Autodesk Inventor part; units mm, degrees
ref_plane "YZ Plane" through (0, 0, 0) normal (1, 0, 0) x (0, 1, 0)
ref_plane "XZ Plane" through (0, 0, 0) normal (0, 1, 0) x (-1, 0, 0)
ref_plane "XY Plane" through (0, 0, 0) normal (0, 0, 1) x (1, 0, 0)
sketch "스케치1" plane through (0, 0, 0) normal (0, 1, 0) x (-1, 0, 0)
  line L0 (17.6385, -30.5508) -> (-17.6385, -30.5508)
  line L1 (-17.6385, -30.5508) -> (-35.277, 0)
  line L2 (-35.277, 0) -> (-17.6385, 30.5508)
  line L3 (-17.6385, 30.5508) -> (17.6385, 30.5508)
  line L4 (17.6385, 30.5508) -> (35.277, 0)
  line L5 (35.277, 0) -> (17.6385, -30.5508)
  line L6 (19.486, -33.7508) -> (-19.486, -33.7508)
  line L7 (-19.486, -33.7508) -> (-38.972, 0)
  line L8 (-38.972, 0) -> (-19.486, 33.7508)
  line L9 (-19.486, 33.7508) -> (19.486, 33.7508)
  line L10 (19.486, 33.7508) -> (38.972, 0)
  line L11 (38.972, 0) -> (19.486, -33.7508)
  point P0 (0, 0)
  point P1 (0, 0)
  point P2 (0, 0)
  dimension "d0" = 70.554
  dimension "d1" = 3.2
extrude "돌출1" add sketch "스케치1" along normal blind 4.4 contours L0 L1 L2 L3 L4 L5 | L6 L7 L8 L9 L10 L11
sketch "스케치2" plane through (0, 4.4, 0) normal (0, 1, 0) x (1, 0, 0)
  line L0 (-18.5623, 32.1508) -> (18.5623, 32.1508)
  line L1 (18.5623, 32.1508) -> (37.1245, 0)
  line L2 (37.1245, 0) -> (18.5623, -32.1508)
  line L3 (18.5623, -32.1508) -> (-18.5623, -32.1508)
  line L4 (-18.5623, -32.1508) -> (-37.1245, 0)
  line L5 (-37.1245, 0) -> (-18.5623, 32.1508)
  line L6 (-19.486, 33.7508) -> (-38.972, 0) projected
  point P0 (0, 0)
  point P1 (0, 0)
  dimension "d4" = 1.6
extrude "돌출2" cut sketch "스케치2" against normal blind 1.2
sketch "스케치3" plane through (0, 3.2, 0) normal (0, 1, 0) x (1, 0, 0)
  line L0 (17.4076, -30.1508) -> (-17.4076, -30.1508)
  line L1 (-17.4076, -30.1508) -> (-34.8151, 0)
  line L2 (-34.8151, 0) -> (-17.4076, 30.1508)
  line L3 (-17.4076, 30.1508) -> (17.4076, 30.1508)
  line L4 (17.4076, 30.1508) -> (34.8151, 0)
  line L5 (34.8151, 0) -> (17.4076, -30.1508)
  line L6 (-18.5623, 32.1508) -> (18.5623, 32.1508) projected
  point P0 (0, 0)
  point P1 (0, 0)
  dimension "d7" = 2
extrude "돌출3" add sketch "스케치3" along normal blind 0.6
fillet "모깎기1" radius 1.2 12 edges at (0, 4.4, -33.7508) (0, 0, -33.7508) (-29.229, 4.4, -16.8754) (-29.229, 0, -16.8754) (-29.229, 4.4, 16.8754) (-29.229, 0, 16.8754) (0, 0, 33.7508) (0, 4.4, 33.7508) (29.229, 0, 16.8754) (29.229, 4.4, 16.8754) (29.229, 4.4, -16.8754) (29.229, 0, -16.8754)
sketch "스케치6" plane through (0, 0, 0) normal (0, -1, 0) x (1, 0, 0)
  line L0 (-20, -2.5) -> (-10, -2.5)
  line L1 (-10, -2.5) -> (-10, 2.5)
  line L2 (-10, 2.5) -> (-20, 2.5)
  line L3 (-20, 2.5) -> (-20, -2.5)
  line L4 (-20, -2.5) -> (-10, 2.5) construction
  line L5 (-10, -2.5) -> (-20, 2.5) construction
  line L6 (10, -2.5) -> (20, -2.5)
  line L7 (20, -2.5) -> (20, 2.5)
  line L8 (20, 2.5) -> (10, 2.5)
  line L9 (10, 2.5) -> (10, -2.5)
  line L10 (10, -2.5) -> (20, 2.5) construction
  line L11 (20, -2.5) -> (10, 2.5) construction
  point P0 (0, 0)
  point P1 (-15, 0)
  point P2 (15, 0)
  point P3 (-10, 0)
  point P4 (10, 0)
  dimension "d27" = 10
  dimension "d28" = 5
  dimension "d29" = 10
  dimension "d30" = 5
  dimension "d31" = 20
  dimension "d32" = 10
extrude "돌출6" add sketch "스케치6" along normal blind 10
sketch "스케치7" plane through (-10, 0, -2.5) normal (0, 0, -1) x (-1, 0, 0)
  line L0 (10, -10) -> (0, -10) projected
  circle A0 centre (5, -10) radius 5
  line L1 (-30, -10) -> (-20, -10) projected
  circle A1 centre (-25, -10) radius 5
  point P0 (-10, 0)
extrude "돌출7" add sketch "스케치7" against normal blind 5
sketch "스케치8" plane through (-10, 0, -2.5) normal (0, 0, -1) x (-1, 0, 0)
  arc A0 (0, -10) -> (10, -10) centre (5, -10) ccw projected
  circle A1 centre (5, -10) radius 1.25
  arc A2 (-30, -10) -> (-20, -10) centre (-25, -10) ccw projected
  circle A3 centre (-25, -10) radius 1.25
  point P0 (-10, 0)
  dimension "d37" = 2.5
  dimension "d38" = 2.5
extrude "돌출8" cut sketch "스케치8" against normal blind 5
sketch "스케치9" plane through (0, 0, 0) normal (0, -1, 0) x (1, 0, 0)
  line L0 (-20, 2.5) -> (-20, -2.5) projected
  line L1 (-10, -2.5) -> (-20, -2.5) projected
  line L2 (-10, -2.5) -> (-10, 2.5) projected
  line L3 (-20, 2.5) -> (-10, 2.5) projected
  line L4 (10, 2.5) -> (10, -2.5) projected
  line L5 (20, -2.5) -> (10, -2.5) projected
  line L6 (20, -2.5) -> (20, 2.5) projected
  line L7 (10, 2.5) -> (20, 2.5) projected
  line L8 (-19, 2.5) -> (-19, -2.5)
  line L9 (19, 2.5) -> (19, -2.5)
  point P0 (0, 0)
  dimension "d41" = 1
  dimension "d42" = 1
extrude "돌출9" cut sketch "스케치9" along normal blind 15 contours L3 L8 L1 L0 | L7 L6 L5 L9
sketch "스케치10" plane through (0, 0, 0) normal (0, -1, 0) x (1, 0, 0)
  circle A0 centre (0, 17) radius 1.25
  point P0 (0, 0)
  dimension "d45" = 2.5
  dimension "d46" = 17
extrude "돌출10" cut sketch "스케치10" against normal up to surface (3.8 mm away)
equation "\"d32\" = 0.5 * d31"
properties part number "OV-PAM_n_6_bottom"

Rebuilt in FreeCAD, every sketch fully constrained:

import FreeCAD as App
import Part
import Sketcher
from FreeCAD import Vector
Q = App.Units.Quantity


def edges_at(feature, points):
    """Names of the edges that pass closest to the given points."""
    edges = feature.Shape.Edges
    near = lambda p: min(range(len(edges)), key=lambda i: edges[i].distToShape(Part.Vertex(*p))[0])
    return sorted({f"Edge{near(p) + 1}" for p in points})


def add_polygon(sketch, points):
    """Adds a closed chain of lines whose ends are joined by coincident constraints."""
    first, n = sketch.GeometryCount, len(points)
    for a, b in zip(points, points[1:] + points[:1]):
        sketch.addGeometry(Part.LineSegment(App.Vector(*a, 0), App.Vector(*b, 0)), False)
    for i in range(n):
        sketch.addConstraint(Sketcher.Constraint("Coincident", first + i, 2, first + (i + 1) % n, 1))

doc = App.newDocument("Part")
body = doc.addObject("PartDesign::Body", "Body")

# Sketch on XZ plane
sketch1 = body.newObject("Sketcher::SketchObject", "Sketch")
sketch1.AttachmentSupport = (doc.getObject("XZ_Plane"), [""])
sketch1.MapMode = "FlatFace"
add_polygon(sketch1, [(19, -34), (-19, -34), (-39, 0), (-19, 34), (19, 34), (39, 0)])  # lines 0-5
sketch1.addConstraint(Sketcher.Constraint("Horizontal", 0))
sketch1.addConstraint(Sketcher.Constraint("Horizontal", 3))
sketch1.addConstraint(Sketcher.Constraint("Symmetric", 0, 2, 3, 2, -1, 1))
sketch1.addConstraint(Sketcher.Constraint("Symmetric", 1, 2, 4, 2, -1, 1))
sketch1.addConstraint(Sketcher.Constraint("PointOnObject", 1, 2, -1))
sketch1.addConstraint(Sketcher.Constraint("Parallel", 2, 5))
sketch1.addConstraint(Sketcher.Constraint("Vertical", 0, 2, 2, 2))
sketch1.addConstraint(Sketcher.Constraint("Angle", 1, Q("120 deg")))
sketch1.addConstraint(Sketcher.Constraint("DistanceX", 0, 2, 0, 1, Q("38.972 mm")))
sketch1.addConstraint(Sketcher.Constraint("Distance", 1, Q("38.972 mm")))
pad1 = body.newObject("PartDesign::Pad", "Pad")
pad1.Profile = sketch1
pad1.Length = 4.4
pad1.Reversed = True

# Sketch on XZ plane
sketch2 = body.newObject("Sketcher::SketchObject", "Sketch001")
sketch2.AttachmentSupport = (doc.getObject("XZ_Plane"), [""])
sketch2.MapMode = "FlatFace"
sketch2.AttachmentOffset = App.Placement(Vector(0, 0, -4.4), App.Rotation())
add_polygon(sketch2, [(19, -32), (-19, -32), (-37, 0), (-19, 32), (19, 32), (37, 0)])  # lines 0-5
sketch2.addConstraint(Sketcher.Constraint("Horizontal", 0))
sketch2.addConstraint(Sketcher.Constraint("Horizontal", 3))
sketch2.addConstraint(Sketcher.Constraint("Symmetric", 0, 2, 3, 2, -1, 1))
sketch2.addConstraint(Sketcher.Constraint("Symmetric", 1, 2, 4, 2, -1, 1))
sketch2.addConstraint(Sketcher.Constraint("PointOnObject", 1, 2, -1))
sketch2.addConstraint(Sketcher.Constraint("Parallel", 2, 5))
sketch2.addConstraint(Sketcher.Constraint("Vertical", 0, 2, 2, 2))
sketch2.addConstraint(Sketcher.Constraint("Angle", 1, Q("120 deg")))
sketch2.addConstraint(Sketcher.Constraint("DistanceX", 0, 2, 0, 1, Q("37.1246 mm")))
sketch2.addConstraint(Sketcher.Constraint("DistanceX", 1, 2, 4, 2, Q("74.249 mm")))
pocket1 = body.newObject("PartDesign::Pocket", "Pocket")
pocket1.Profile = sketch2
pocket1.Length = 1.2
pocket1.Reversed = True

# Sketch on XZ plane
sketch3 = body.newObject("Sketcher::SketchObject", "Sketch002")
sketch3.AttachmentSupport = (doc.getObject("XZ_Plane"), [""])
sketch3.MapMode = "FlatFace"
sketch3.AttachmentOffset = App.Placement(Vector(0, 0, -3.2), App.Rotation())
add_polygon(sketch3, [(-17, 30), (17, 30), (35, 0), (17, -30), (-17, -30), (-35, 0)])  # lines 0-5
sketch3.addConstraint(Sketcher.Constraint("Horizontal", 0))
sketch3.addConstraint(Sketcher.Constraint("Horizontal", 3))
sketch3.addConstraint(Sketcher.Constraint("Symmetric", 0, 2, 3, 2, -1, 1))
sketch3.addConstraint(Sketcher.Constraint("Symmetric", 1, 2, 4, 2, -1, 1))
sketch3.addConstraint(Sketcher.Constraint("PointOnObject", 1, 2, -1))
sketch3.addConstraint(Sketcher.Constraint("Parallel", 2, 5))
sketch3.addConstraint(Sketcher.Constraint("Vertical", 0, 2, 2, 2))
sketch3.addConstraint(Sketcher.Constraint("Angle", 1, Q("-60 deg")))
sketch3.addConstraint(Sketcher.Constraint("Distance", 1, Q("34.815 mm")))
sketch3.addConstraint(Sketcher.Constraint("DistanceX", 0, 1, 0, 2, Q("34.8152 mm")))
pad2 = body.newObject("PartDesign::Pad", "Pad001")
pad2.Profile = sketch3
pad2.Length = 0.6
pad2.Reversed = True
doc.recompute()

fillet = body.newObject("PartDesign::Fillet", "Fillet")
fillet.Base = (pad2, edges_at(pad2, [
    (0, 4.4, -33.751),
    (0, 0, -33.751),
    (-29.229, 4.4, -16.875),
    (-29.229, 0, -16.875),
    (-29.229, 4.4, 16.875),
    (-29.229, 0, 16.875),
    (0, 0, 33.751),
    (0, 4.4, 33.751),
    (29.229, 0, 16.875),
    (29.229, 4.4, 16.875),
    (29.229, 4.4, -16.875),
    (29.229, 0, -16.875),
]))
fillet.Radius = 1.2

# Sketch on XZ plane
sketch4 = body.newObject("Sketcher::SketchObject", "Sketch003")
sketch4.AttachmentSupport = (doc.getObject("XZ_Plane"), [""])
sketch4.MapMode = "FlatFace"
add_polygon(sketch4, [(-20, 2), (-20, -2), (-10, -2), (-10, 2)])  # lines 0-3
add_polygon(sketch4, [(10, 2), (10, -2), (20, -2), (20, 2)])  # lines 4-7
sketch4.addConstraint(Sketcher.Constraint("Vertical", 0))
sketch4.addConstraint(Sketcher.Constraint("Horizontal", 1))
sketch4.addConstraint(Sketcher.Constraint("Vertical", 2))
sketch4.addConstraint(Sketcher.Constraint("Horizontal", 3))
sketch4.addConstraint(Sketcher.Constraint("Vertical", 4))
sketch4.addConstraint(Sketcher.Constraint("Horizontal", 5))
sketch4.addConstraint(Sketcher.Constraint("Vertical", 6))
sketch4.addConstraint(Sketcher.Constraint("Horizontal", 7))
sketch4.addConstraint(Sketcher.Constraint("Symmetric", 2, 2, 4, 2, -1, 1))
sketch4.addConstraint(Sketcher.Constraint("Symmetric", 0, 2, 6, 2, -1, 1))
sketch4.addConstraint(Sketcher.Constraint("Horizontal", 1, 2, 4, 2))
sketch4.addConstraint(Sketcher.Constraint("DistanceX", 1, 1, 1, 2, Q("10 mm")))
sketch4.addConstraint(Sketcher.Constraint("DistanceY", 0, 2, 0, 1, Q("5 mm")))
sketch4.addConstraint(Sketcher.Constraint("DistanceX", 0, 2, -1, 1, Q("20 mm")))
pad3 = body.newObject("PartDesign::Pad", "Pad002")
pad3.Profile = sketch4
pad3.Length = 10

# Sketch on XY plane
sketch5 = body.newObject("Sketcher::SketchObject", "Sketch004")
sketch5.AttachmentSupport = (doc.getObject("XY_Plane"), [""])
sketch5.MapMode = "FlatFace"
sketch5.AttachmentOffset = App.Placement(Vector(0, 0, -2.5), App.Rotation())
sketch5.addGeometry(Part.Circle(Vector(-15, -10, 0), Vector(0, 0, 1), 5), False)
sketch5.addGeometry(Part.Circle(Vector(15, -10, 0), Vector(0, 0, 1), 5), False)
sketch5.addConstraint(Sketcher.Constraint("Equal", 0, 1))
sketch5.addConstraint(Sketcher.Constraint("Symmetric", 0, 3, 1, 3, -2))
sketch5.addConstraint(Sketcher.Constraint("Diameter", 0, Q("10 mm")))
sketch5.addConstraint(Sketcher.Constraint("DistanceX", 0, 3, -1, 1, Q("15 mm")))
sketch5.addConstraint(Sketcher.Constraint("DistanceY", 0, 3, -1, 1, Q("10 mm")))
pad4 = body.newObject("PartDesign::Pad", "Pad003")
pad4.Profile = sketch5
pad4.Length = 5

# Sketch on XY plane
sketch6 = body.newObject("Sketcher::SketchObject", "Sketch005")
sketch6.AttachmentSupport = (doc.getObject("XY_Plane"), [""])
sketch6.MapMode = "FlatFace"
sketch6.AttachmentOffset = App.Placement(Vector(0, 0, -2.5), App.Rotation())
sketch6.addGeometry(Part.Circle(Vector(-15, -10, 0), Vector(0, 0, 1), 1.2), False)
sketch6.addGeometry(Part.Circle(Vector(15, -10, 0), Vector(0, 0, 1), 1.2), False)
sketch6.addConstraint(Sketcher.Constraint("Equal", 0, 1))
sketch6.addConstraint(Sketcher.Constraint("Symmetric", 0, 3, 1, 3, -2))
sketch6.addConstraint(Sketcher.Constraint("Diameter", 0, Q("2.5 mm")))
sketch6.addConstraint(Sketcher.Constraint("DistanceX", 0, 3, -1, 1, Q("15 mm")))
sketch6.addConstraint(Sketcher.Constraint("DistanceY", 0, 3, -1, 1, Q("10 mm")))
pocket2 = body.newObject("PartDesign::Pocket", "Pocket001")
pocket2.Profile = sketch6
pocket2.Length = 5
pocket2.Reversed = True

# Sketch on XZ plane
sketch7 = body.newObject("Sketcher::SketchObject", "Sketch006")
sketch7.AttachmentSupport = (doc.getObject("XZ_Plane"), [""])
sketch7.MapMode = "FlatFace"
add_polygon(sketch7, [(-19, 2.5), (-20, 2.5), (-20, -2.5), (-19, -2.5)])  # lines 0-3
add_polygon(sketch7, [(20, 2.5), (19, 2.5), (19, -2.5), (20, -2.5)])  # lines 4-7
sketch7.addConstraint(Sketcher.Constraint("Horizontal", 0))
sketch7.addConstraint(Sketcher.Constraint("Vertical", 1))
sketch7.addConstraint(Sketcher.Constraint("Horizontal", 2))
sketch7.addConstraint(Sketcher.Constraint("Vertical", 3))
sketch7.addConstraint(Sketcher.Constraint("Horizontal", 4))
sketch7.addConstraint(Sketcher.Constraint("Vertical", 5))
sketch7.addConstraint(Sketcher.Constraint("Horizontal", 6))
sketch7.addConstraint(Sketcher.Constraint("Vertical", 7))
sketch7.addConstraint(Sketcher.Constraint("Symmetric", 2, 2, 4, 2, -1, 1))
sketch7.addConstraint(Sketcher.Constraint("Symmetric", 0, 2, 6, 2, -1, 1))
sketch7.addConstraint(Sketcher.Constraint("Horizontal", 3, 2, 4, 2))
sketch7.addConstraint(Sketcher.Constraint("DistanceX", 0, 2, 0, 1, Q("1 mm")))
sketch7.addConstraint(Sketcher.Constraint("DistanceY", 1, 2, 1, 1, Q("5 mm")))
sketch7.addConstraint(Sketcher.Constraint("DistanceX", 0, 2, -1, 1, Q("20 mm")))
pocket3 = body.newObject("PartDesign::Pocket", "Pocket002")
pocket3.Profile = sketch7
pocket3.Length = 15
pocket3.Reversed = True

# Sketch on XZ plane
sketch8 = body.newObject("Sketcher::SketchObject", "Sketch007")
sketch8.AttachmentSupport = (doc.getObject("XZ_Plane"), [""])
sketch8.MapMode = "FlatFace"
sketch8.addGeometry(Part.Circle(Vector(0, 17, 0), Vector(0, 0, 1), 1.2), False)
sketch8.addConstraint(Sketcher.Constraint("PointOnObject", 0, 3, -2))
sketch8.addConstraint(Sketcher.Constraint("Diameter", 0, Q("2.5 mm")))
sketch8.addConstraint(Sketcher.Constraint("DistanceY", -1, 1, 0, 3, Q("17 mm")))
pocket4 = body.newObject("PartDesign::Pocket", "Pocket003")
pocket4.Profile = sketch8
pocket4.Length = 3.8

doc.recompute()
